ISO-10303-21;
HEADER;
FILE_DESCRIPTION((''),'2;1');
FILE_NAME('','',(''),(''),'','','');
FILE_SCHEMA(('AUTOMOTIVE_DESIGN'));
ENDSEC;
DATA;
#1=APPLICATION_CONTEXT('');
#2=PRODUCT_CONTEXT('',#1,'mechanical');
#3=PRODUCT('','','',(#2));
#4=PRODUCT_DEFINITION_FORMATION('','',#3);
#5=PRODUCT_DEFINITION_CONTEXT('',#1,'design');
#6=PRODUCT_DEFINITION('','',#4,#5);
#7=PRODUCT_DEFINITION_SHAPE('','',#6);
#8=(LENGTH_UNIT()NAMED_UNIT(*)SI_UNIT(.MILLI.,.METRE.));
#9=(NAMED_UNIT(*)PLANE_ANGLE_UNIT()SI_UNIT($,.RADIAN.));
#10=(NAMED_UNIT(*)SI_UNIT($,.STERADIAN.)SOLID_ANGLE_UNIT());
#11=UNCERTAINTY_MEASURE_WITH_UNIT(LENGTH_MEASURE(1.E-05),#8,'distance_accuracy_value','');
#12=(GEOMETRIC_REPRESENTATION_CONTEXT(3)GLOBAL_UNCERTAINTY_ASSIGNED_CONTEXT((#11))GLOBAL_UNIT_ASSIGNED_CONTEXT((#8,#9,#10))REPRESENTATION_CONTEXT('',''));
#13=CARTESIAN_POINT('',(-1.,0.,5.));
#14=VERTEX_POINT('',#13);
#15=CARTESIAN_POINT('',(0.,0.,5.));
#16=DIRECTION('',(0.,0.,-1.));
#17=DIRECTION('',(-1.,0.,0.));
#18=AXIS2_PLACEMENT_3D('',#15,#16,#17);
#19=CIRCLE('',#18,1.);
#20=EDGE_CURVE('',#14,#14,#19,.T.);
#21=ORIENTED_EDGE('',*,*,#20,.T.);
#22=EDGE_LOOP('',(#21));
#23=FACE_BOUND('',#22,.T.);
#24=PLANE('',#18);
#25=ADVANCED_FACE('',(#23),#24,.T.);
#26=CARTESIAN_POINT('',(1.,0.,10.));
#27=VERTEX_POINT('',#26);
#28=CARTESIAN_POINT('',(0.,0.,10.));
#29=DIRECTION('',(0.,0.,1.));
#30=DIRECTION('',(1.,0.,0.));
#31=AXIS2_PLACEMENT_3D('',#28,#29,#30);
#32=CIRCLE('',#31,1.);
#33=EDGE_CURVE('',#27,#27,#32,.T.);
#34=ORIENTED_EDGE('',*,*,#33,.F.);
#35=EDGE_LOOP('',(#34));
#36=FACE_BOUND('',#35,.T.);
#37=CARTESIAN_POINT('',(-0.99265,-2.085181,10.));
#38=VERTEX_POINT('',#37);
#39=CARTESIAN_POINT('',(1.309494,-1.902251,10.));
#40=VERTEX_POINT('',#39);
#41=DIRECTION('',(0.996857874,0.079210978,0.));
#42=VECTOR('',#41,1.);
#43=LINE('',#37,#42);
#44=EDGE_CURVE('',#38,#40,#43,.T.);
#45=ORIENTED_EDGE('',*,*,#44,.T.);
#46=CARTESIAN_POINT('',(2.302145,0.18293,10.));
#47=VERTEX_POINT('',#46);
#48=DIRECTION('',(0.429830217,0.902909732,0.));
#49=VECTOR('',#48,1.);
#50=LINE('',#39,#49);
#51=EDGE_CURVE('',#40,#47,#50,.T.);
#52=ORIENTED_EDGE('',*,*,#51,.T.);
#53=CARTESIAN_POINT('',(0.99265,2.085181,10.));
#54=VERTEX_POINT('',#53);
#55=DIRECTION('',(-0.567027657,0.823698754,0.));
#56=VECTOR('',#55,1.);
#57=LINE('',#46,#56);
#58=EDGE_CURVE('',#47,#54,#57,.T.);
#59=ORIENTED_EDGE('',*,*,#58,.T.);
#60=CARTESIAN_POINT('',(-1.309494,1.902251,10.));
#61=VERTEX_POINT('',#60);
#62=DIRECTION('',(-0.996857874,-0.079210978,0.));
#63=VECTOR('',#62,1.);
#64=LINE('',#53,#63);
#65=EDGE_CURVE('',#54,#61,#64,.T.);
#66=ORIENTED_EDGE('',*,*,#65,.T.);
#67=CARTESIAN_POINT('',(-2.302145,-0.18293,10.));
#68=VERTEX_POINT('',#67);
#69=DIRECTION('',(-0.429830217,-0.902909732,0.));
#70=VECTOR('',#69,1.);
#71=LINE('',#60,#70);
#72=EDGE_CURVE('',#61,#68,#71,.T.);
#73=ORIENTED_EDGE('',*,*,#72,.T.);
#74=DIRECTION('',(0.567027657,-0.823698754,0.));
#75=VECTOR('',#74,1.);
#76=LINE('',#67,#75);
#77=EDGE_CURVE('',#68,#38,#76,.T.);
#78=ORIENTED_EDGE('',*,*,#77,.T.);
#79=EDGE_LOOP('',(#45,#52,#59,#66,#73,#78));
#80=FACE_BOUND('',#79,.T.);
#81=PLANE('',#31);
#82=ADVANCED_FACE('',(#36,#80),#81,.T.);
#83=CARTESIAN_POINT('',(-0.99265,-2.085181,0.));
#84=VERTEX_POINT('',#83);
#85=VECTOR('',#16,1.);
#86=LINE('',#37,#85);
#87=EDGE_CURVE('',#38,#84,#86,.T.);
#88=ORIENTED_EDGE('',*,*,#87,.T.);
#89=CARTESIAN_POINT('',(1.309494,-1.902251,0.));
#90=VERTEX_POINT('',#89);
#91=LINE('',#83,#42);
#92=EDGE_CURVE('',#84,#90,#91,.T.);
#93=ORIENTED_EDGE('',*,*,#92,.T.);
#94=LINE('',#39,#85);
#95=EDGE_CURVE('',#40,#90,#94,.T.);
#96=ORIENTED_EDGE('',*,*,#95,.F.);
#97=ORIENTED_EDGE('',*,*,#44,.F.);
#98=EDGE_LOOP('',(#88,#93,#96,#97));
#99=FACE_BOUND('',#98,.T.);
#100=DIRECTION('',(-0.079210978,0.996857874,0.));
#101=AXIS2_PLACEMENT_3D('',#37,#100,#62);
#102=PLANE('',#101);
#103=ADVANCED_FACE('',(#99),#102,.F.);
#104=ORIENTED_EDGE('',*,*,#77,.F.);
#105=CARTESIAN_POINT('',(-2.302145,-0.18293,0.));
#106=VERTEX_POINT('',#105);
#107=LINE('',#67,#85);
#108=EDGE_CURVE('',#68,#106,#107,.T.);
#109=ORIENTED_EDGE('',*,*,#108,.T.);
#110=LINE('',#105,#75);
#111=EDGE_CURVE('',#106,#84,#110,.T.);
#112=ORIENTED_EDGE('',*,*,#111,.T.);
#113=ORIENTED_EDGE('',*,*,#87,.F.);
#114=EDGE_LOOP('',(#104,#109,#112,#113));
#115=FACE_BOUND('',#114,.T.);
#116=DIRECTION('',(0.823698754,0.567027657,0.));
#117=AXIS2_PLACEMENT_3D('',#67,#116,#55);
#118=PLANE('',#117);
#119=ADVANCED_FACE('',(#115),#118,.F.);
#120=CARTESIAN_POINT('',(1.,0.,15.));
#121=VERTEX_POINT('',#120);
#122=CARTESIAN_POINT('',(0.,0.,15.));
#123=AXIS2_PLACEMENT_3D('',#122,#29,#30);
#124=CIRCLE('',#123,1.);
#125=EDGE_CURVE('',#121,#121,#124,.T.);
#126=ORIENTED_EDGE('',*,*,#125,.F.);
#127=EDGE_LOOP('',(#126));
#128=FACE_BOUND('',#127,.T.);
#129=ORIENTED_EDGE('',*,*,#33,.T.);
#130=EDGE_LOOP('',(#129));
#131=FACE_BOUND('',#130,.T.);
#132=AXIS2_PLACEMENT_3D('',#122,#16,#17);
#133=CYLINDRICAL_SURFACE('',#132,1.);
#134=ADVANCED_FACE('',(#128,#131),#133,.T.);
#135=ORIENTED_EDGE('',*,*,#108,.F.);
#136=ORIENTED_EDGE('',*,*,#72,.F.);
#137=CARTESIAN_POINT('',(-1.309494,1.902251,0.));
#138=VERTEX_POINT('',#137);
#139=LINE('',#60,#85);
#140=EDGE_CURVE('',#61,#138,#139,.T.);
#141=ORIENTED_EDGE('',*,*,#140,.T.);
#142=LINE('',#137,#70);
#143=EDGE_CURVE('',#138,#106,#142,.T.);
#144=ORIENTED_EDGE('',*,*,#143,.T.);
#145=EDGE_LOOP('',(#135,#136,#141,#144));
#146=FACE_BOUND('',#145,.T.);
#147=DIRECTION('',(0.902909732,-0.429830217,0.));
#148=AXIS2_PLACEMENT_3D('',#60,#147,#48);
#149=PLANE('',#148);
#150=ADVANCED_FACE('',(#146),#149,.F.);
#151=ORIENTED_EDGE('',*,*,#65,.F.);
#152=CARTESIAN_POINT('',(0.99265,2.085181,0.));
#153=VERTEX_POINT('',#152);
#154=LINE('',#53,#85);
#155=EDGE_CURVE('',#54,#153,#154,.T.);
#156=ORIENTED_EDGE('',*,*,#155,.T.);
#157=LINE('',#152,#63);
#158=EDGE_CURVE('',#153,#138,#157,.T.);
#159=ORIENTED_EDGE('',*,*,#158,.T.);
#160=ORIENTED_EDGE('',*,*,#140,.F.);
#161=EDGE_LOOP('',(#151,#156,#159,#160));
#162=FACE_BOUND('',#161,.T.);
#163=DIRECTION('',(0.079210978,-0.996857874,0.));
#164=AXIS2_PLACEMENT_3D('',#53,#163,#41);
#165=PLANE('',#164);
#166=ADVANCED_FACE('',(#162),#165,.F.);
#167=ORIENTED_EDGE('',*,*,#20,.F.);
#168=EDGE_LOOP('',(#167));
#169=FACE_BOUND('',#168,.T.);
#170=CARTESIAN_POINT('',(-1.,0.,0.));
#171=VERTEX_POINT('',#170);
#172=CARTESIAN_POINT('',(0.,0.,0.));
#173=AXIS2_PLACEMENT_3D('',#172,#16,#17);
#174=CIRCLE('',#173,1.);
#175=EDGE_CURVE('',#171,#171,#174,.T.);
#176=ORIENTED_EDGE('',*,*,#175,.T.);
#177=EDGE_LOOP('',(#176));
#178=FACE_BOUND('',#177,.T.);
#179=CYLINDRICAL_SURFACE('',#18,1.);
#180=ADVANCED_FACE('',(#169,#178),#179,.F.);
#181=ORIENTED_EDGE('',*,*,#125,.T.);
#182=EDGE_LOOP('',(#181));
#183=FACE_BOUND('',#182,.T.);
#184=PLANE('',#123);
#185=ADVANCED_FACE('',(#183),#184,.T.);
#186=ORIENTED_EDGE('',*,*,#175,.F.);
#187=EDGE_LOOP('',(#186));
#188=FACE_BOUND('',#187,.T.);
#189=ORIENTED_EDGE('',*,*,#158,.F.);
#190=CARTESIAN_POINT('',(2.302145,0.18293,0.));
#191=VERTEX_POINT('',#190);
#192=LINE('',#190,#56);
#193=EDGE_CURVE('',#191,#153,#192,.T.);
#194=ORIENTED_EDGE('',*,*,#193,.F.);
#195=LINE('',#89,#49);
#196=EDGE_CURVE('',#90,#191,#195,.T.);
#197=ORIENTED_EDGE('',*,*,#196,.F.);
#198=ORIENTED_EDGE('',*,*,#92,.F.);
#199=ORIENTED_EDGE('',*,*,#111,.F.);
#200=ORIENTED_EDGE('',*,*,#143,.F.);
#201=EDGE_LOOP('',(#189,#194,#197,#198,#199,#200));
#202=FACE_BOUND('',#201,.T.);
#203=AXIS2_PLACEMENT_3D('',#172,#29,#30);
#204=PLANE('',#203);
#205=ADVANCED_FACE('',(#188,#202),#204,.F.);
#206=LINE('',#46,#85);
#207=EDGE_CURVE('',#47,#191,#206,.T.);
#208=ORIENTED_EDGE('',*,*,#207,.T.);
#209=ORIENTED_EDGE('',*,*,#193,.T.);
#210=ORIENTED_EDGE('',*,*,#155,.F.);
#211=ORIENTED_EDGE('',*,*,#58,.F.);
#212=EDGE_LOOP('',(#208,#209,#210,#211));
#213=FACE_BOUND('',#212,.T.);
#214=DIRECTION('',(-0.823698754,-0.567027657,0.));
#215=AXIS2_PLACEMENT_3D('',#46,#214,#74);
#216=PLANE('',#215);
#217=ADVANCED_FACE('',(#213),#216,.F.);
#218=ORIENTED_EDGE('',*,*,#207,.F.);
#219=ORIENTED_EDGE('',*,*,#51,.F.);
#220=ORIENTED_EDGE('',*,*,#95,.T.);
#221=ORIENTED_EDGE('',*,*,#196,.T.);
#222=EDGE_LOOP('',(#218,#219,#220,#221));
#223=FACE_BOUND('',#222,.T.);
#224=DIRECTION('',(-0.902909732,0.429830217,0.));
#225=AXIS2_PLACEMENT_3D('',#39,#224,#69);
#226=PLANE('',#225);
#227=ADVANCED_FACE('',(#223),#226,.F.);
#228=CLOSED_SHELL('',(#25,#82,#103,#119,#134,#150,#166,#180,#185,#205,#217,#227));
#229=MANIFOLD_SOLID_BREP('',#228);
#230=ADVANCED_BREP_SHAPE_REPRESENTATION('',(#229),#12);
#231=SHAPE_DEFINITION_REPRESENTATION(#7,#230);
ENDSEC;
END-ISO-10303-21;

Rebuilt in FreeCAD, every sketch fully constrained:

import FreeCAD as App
import Part
import Sketcher

V = App.Vector
Q = App.Units.Quantity

doc = App.newDocument("Part")
body = doc.addObject("PartDesign::Body", "Body")

# Sketch on XY plane
sketch1 = body.newObject("Sketcher::SketchObject", "Sketch")
sketch1.AttachmentSupport = (doc.getObject("XY_Plane"), [""])
sketch1.MapMode = "FlatFace"
sketch1.addGeometry(Part.LineSegment(V(2.3, 0.2, 0), V(1, 2.1, 0)), False)
sketch1.addGeometry(Part.LineSegment(V(1, 2.1, 0), V(-1.3, 1.9, 0)), False)
sketch1.addGeometry(Part.LineSegment(V(-1.3, 1.9, 0), V(-2.3, -0.2, 0)), False)
sketch1.addGeometry(Part.LineSegment(V(-2.3, -0.2, 0), V(-1, -2.1, 0)), False)
sketch1.addGeometry(Part.LineSegment(V(-1, -2.1, 0), V(1.3, -1.9, 0)), False)
sketch1.addGeometry(Part.LineSegment(V(1.3, -1.9, 0), V(2.3, 0.2, 0)), False)
sketch1.addConstraint(Sketcher.Constraint("Coincident", 0, 2, 1, 1))
sketch1.addConstraint(Sketcher.Constraint("Coincident", 1, 2, 2, 1))
sketch1.addConstraint(Sketcher.Constraint("Coincident", 2, 2, 3, 1))
sketch1.addConstraint(Sketcher.Constraint("Coincident", 3, 2, 4, 1))
sketch1.addConstraint(Sketcher.Constraint("Coincident", 4, 2, 5, 1))
sketch1.addConstraint(Sketcher.Constraint("Coincident", 5, 2, 0, 1))
sketch1.addConstraint(Sketcher.Constraint("Symmetric", 0, 2, 3, 2, -1, 1))
sketch1.addConstraint(Sketcher.Constraint("Symmetric", 1, 2, 4, 2, -1, 1))
sketch1.addConstraint(Sketcher.Constraint("Symmetric", 2, 2, 5, 2, -1, 1))
sketch1.addConstraint(Sketcher.Constraint("Equal", 0, 1))
sketch1.addConstraint(Sketcher.Constraint("Equal", 1, 2))
sketch1.addConstraint(Sketcher.Constraint("Distance", 0, Q("2.309401 mm")))
sketch1.addConstraint(Sketcher.Constraint("DistanceX", 3, 2, 0, 2, Q("1.985301 mm")))
sketch1.addConstraint(Sketcher.Constraint("DistanceY", 4, 2, 1, 2, Q("3.804502 mm")))
sketch1.addConstraint(Sketcher.Constraint("DistanceY", -1, 1, 0, 2, Q("2.085181 mm")))
pad1 = body.newObject("PartDesign::Pad", "Pad")
pad1.Profile = sketch1
pad1.Length = 10

# Sketch on XY plane
sketch2 = body.newObject("Sketcher::SketchObject", "Sketch001")
sketch2.AttachmentSupport = (doc.getObject("XY_Plane"), [""])
sketch2.MapMode = "FlatFace"
sketch2.AttachmentOffset = App.Placement(V(0, 0, 10), App.Rotation())
sketch2.addGeometry(Part.Circle(V(0, 0, 0), V(0, 0, 1), 1), False)
sketch2.addConstraint(Sketcher.Constraint("Coincident", 0, 3, -1, 1))
sketch2.addConstraint(Sketcher.Constraint("Diameter", 0, Q("2 mm")))
pad2 = body.newObject("PartDesign::Pad", "Pad001")
pad2.Profile = sketch2
pad2.Length = 5

# Sketch on XY plane
sketch3 = body.newObject("Sketcher::SketchObject", "Sketch002")
sketch3.AttachmentSupport = (doc.getObject("XY_Plane"), [""])
sketch3.MapMode = "FlatFace"
sketch3.addGeometry(Part.Circle(V(0, 0, 0), V(0, 0, 1), 1), False)
sketch3.addConstraint(Sketcher.Constraint("Coincident", 0, 3, -1, 1))
sketch3.addConstraint(Sketcher.Constraint("Diameter", 0, Q("2 mm")))
pocket1 = body.newObject("PartDesign::Pocket", "Pocket")
pocket1.Profile = sketch3
pocket1.Length = 5
pocket1.Reversed = True

doc.recompute()
